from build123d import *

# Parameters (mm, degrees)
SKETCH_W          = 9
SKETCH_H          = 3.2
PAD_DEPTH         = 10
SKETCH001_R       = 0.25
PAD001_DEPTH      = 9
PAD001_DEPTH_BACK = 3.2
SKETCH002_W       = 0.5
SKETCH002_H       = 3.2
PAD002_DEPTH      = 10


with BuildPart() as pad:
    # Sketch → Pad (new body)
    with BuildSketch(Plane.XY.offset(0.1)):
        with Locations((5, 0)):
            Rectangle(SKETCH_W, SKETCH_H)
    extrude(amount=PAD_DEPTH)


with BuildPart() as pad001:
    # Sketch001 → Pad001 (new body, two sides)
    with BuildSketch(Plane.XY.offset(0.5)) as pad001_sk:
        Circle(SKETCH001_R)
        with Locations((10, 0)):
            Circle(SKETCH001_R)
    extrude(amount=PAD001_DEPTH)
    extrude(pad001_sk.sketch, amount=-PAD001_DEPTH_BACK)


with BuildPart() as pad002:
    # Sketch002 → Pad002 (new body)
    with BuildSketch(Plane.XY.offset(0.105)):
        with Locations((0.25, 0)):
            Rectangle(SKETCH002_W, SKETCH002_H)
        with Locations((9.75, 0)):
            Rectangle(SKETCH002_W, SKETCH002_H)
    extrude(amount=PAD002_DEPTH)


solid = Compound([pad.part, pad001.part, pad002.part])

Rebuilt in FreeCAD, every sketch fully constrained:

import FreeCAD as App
import Part
import Sketcher
Q = App.Units.Quantity

doc = App.newDocument("Part")
body = doc.addObject("PartDesign::Body", "Body")

# Sketch on XY plane
sketch1 = body.newObject("Sketcher::SketchObject", "Sketch")
sketch1.AttachmentSupport = (doc.getObject("XY_Plane"), [""])
sketch1.MapMode = "FlatFace"
sketch1.AttachmentOffset = App.Placement(App.Vector(0, 0, 0.1), App.Rotation())
sketch1.addGeometry([
    Part.LineSegment(App.Vector(0.5, 1.6, 0), App.Vector(0.5, -1.6, 0)),
    Part.LineSegment(App.Vector(0.5, -1.6, 0), App.Vector(9.5, -1.6, 0)),
    Part.LineSegment(App.Vector(9.5, -1.6, 0), App.Vector(9.5, 1.6, 0)),
    Part.LineSegment(App.Vector(9.5, 1.6, 0), App.Vector(0.5, 1.6, 0)),
], False)
sketch1.addConstraint([
    Sketcher.Constraint("Coincident", 0, 2, 1, 1),
    Sketcher.Constraint("Coincident", 1, 2, 2, 1),
    Sketcher.Constraint("Coincident", 2, 2, 3, 1),
    Sketcher.Constraint("Coincident", 3, 2, 0, 1),
    Sketcher.Constraint("Vertical", 0),
    Sketcher.Constraint("Horizontal", 1),
    Sketcher.Constraint("Vertical", 2),
    Sketcher.Constraint("Horizontal", 3),
    Sketcher.Constraint("DistanceX", 1, 1, 1, 2, Q("9 mm")),
    Sketcher.Constraint("DistanceY", 0, 2, 0, 1, Q("3.2 mm")),
    Sketcher.Constraint("DistanceX", -1, 1, 0, 2, Q("0.5 mm")),
    Sketcher.Constraint("DistanceY", 0, 2, -1, 1, Q("1.6 mm")),
])
pad1 = body.newObject("PartDesign::Pad", "Pad")
pad1.Profile = sketch1
pad1.Length = 10
body2 = doc.addObject("PartDesign::Body", "Body001")
body2.AllowCompound = True

# Sketch on XY plane
sketch2 = body2.newObject("Sketcher::SketchObject", "Sketch001")
sketch2.AttachmentSupport = (doc.getObject("XY_Plane001"), [""])
sketch2.MapMode = "FlatFace"
sketch2.AttachmentOffset = App.Placement(App.Vector(0, 0, 0.5), App.Rotation())
sketch2.addGeometry([
    Part.Circle(App.Vector(0, 0, 0), App.Vector(0, 0, 1), 0.25),
    Part.Circle(App.Vector(10, 0, 0), App.Vector(0, 0, 1), 0.25),
], False)
sketch2.addConstraint([
    Sketcher.Constraint("Coincident", 0, 3, -1, 1),
    Sketcher.Constraint("Equal", 0, 1),
    Sketcher.Constraint("PointOnObject", 1, 3, -1),
    Sketcher.Constraint("Diameter", 0, Q("0.5 mm")),
    Sketcher.Constraint("DistanceX", -1, 1, 1, 3, Q("10 mm")),
])
pad2 = body2.newObject("PartDesign::Pad", "Pad001")
pad2.Profile = sketch2
pad2.Type = "TwoLengths"
pad2.Length = 9
pad2.Length2 = 3.2
body3 = doc.addObject("PartDesign::Body", "Body002")
body3.AllowCompound = True

# Sketch on XY plane
sketch3 = body3.newObject("Sketcher::SketchObject", "Sketch002")
sketch3.AttachmentSupport = (doc.getObject("XY_Plane002"), [""])
sketch3.MapMode = "FlatFace"
sketch3.AttachmentOffset = App.Placement(App.Vector(0, 0, 0.105), App.Rotation())
sketch3.addGeometry([
    Part.LineSegment(App.Vector(0, 1.6, 0), App.Vector(0, -1.6, 0)),  # 0
    Part.LineSegment(App.Vector(0, -1.6, 0), App.Vector(0.5, -1.6, 0)),  # 1
    Part.LineSegment(App.Vector(0.5, -1.6, 0), App.Vector(0.5, 1.6, 0)),  # 2
    Part.LineSegment(App.Vector(0.5, 1.6, 0), App.Vector(0, 1.6, 0)),  # 3
    Part.LineSegment(App.Vector(9.5, 1.6, 0), App.Vector(9.5, -1.6, 0)),  # 4
    Part.LineSegment(App.Vector(9.5, -1.6, 0), App.Vector(10, -1.6, 0)),  # 5
    Part.LineSegment(App.Vector(10, -1.6, 0), App.Vector(10, 1.6, 0)),  # 6
    Part.LineSegment(App.Vector(10, 1.6, 0), App.Vector(9.5, 1.6, 0)),  # 7
], False)
sketch3.addConstraint([
    Sketcher.Constraint("Coincident", 0, 2, 1, 1),
    Sketcher.Constraint("Coincident", 1, 2, 2, 1),
    Sketcher.Constraint("Coincident", 2, 2, 3, 1),
    Sketcher.Constraint("Coincident", 3, 2, 0, 1),
    Sketcher.Constraint("Coincident", 4, 2, 5, 1),
    Sketcher.Constraint("Coincident", 5, 2, 6, 1),
    Sketcher.Constraint("Coincident", 6, 2, 7, 1),
    Sketcher.Constraint("Coincident", 7, 2, 4, 1),
    Sketcher.Constraint("Vertical", 0),
    Sketcher.Constraint("Horizontal", 1),
    Sketcher.Constraint("Vertical", 2),
    Sketcher.Constraint("Horizontal", 3),
    Sketcher.Constraint("Vertical", 4),
    Sketcher.Constraint("Horizontal", 5),
    Sketcher.Constraint("Vertical", 6),
    Sketcher.Constraint("Horizontal", 7),
    Sketcher.Constraint("Symmetric", 0, 2, 3, 2, -1, 1),
    Sketcher.Constraint("Horizontal", 1, 2, 4, 2),
    Sketcher.Constraint("Horizontal", 3, 2, 6, 2),
    Sketcher.Constraint("Equal", 3, 5),
    Sketcher.Constraint("DistanceX", 1, 1, 1, 2, Q("0.5 mm")),
    Sketcher.Constraint("DistanceY", 0, 2, 0, 1, Q("3.2 mm")),
    Sketcher.Constraint("DistanceX", -1, 1, 5, 2, Q("10 mm")),
])
pad3 = body3.newObject("PartDesign::Pad", "Pad002")
pad3.Profile = sketch3
pad3.Length = 10

doc.recompute()
